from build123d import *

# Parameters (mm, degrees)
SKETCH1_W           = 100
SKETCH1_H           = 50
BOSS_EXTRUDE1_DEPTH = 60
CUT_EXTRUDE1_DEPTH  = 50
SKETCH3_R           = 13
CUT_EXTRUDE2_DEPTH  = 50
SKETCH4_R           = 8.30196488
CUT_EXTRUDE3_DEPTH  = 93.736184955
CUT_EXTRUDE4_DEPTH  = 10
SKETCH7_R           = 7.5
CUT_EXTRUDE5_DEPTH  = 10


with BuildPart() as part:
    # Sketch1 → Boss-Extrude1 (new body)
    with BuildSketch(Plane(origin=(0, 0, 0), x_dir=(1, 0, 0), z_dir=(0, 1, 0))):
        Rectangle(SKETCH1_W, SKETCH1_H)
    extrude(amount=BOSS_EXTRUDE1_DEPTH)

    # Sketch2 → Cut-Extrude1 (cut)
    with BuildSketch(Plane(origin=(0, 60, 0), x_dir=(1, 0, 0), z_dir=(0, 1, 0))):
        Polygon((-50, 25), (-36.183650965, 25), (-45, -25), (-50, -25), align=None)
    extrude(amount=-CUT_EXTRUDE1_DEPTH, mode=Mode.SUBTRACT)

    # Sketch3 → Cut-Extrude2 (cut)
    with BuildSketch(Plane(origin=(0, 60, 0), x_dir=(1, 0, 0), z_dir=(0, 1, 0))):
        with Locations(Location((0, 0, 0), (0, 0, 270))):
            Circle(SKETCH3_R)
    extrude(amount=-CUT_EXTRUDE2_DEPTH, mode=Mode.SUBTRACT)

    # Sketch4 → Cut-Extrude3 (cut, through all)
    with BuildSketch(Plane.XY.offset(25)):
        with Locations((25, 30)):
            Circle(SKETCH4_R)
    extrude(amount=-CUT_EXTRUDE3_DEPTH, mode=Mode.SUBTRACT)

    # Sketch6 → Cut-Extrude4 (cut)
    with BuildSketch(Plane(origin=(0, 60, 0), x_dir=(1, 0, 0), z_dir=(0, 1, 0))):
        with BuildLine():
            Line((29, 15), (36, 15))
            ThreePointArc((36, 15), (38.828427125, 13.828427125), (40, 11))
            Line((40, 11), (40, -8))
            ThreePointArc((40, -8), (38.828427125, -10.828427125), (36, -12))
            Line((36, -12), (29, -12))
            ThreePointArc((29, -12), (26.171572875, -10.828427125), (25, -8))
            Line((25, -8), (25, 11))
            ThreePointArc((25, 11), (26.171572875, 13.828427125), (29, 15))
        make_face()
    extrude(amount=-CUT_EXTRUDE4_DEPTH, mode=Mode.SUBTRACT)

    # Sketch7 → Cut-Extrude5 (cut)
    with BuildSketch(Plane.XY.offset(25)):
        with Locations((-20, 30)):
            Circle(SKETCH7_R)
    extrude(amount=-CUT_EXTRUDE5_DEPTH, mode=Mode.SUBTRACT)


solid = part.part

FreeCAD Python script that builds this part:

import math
import FreeCAD as App
import Part
import Sketcher
Q = App.Units.Quantity

doc = App.newDocument("Part")
body = doc.addObject("PartDesign::Body", "Body")

# Sketch on XZ plane
sketch1 = body.newObject("Sketcher::SketchObject", "Sketch")
sketch1.AttachmentSupport = (doc.getObject("XZ_Plane"), [""])
sketch1.MapMode = "FlatFace"
sketch1.addGeometry([
    Part.LineSegment(App.Vector(-50, -25, 0), App.Vector(-50, 25, 0)),
    Part.LineSegment(App.Vector(-50, 25, 0), App.Vector(50, 25, 0)),
    Part.LineSegment(App.Vector(50, 25, 0), App.Vector(50, -25, 0)),
    Part.LineSegment(App.Vector(50, -25, 0), App.Vector(-50, -25, 0)),
], False)
sketch1.addConstraint([
    Sketcher.Constraint("Coincident", 0, 2, 1, 1),
    Sketcher.Constraint("Coincident", 1, 2, 2, 1),
    Sketcher.Constraint("Coincident", 2, 2, 3, 1),
    Sketcher.Constraint("Coincident", 3, 2, 0, 1),
    Sketcher.Constraint("Vertical", 0),
    Sketcher.Constraint("Horizontal", 1),
    Sketcher.Constraint("Vertical", 2),
    Sketcher.Constraint("Horizontal", 3),
    Sketcher.Constraint("Symmetric", 0, 2, 2, 2, -1, 1),
    Sketcher.Constraint("DistanceX", 1, 1, 1, 2, 100.0),
    Sketcher.Constraint("DistanceY", 0, 1, 0, 2, 50.0),
])
pad1 = body.newObject("PartDesign::Pad", "Pad")
pad1.Profile = sketch1
pad1.Length = 60
pad1.Reversed = True

# Sketch on XZ plane
sketch2 = body.newObject("Sketcher::SketchObject", "Sketch001")
sketch2.AttachmentSupport = (doc.getObject("XZ_Plane"), [""])
sketch2.MapMode = "FlatFace"
sketch2.AttachmentOffset = App.Placement(App.Vector(0, 0, -60), App.Rotation())
sketch2.addGeometry([
    Part.LineSegment(App.Vector(-36, -25, 0), App.Vector(-50, -25, 0)),
    Part.LineSegment(App.Vector(-50, -25, 0), App.Vector(-50, 25, 0)),
    Part.LineSegment(App.Vector(-50, 25, 0), App.Vector(-45, 25, 0)),
    Part.LineSegment(App.Vector(-45, 25, 0), App.Vector(-36, -25, 0)),
], False)
sketch2.addConstraint([
    Sketcher.Constraint("Coincident", 0, 2, 1, 1),
    Sketcher.Constraint("Coincident", 1, 2, 2, 1),
    Sketcher.Constraint("Coincident", 2, 2, 3, 1),
    Sketcher.Constraint("Coincident", 3, 2, 0, 1),
    Sketcher.Constraint("Horizontal", 0),
    Sketcher.Constraint("Vertical", 1),
    Sketcher.Constraint("Horizontal", 2),
    Sketcher.Constraint("DistanceX", 2, 1, 2, 2, 5.0),
    Sketcher.Constraint("DistanceY", 1, 1, 1, 2, 50.0),
    Sketcher.Constraint("Angle", 3, Q("-80 deg")),
    Sketcher.Constraint("DistanceX", 0, 2, -1, 1, 50.0),
    Sketcher.Constraint("DistanceY", 0, 2, -1, 1, 25.0),
])
pocket1 = body.newObject("PartDesign::Pocket", "Pocket")
pocket1.Profile = sketch2
pocket1.Length = 50
pocket1.Reversed = True

# Sketch on XZ plane
sketch3 = body.newObject("Sketcher::SketchObject", "Sketch002")
sketch3.AttachmentSupport = (doc.getObject("XZ_Plane"), [""])
sketch3.MapMode = "FlatFace"
sketch3.AttachmentOffset = App.Placement(App.Vector(0, 0, -60), App.Rotation())
sketch3.addGeometry(Part.Circle(App.Vector(0, 0, 0), App.Vector(0, 0, 1), 13), False)
sketch3.addConstraint([
    Sketcher.Constraint("Coincident", 0, 3, -1, 1),
    Sketcher.Constraint("Diameter", 0, 26.0),
])
pocket2 = body.newObject("PartDesign::Pocket", "Pocket001")
pocket2.Profile = sketch3
pocket2.Length = 50
pocket2.Reversed = True

# Sketch on XY plane
sketch4 = body.newObject("Sketcher::SketchObject", "Sketch003")
sketch4.AttachmentSupport = (doc.getObject("XY_Plane"), [""])
sketch4.MapMode = "FlatFace"
sketch4.AttachmentOffset = App.Placement(App.Vector(0, 0, 25), App.Rotation())
sketch4.addGeometry(Part.Circle(App.Vector(25, 30, 0), App.Vector(0, 0, 1), 8), False)
sketch4.addConstraint([
    Sketcher.Constraint("DistanceX", -1, 1, 0, 3, 25.0),
    Sketcher.Constraint("DistanceY", -1, 1, 0, 3, 30.0),
    Sketcher.Constraint("Diameter", 0, 16.60393),
])
pocket3 = body.newObject("PartDesign::Pocket", "Pocket002")
pocket3.Profile = sketch4
pocket3.Type = "ThroughAll"

# Sketch on XZ plane
sketch5 = body.newObject("Sketcher::SketchObject", "Sketch004")
sketch5.AttachmentSupport = (doc.getObject("XZ_Plane"), [""])
sketch5.MapMode = "FlatFace"
sketch5.AttachmentOffset = App.Placement(App.Vector(0, 0, -60), App.Rotation())
sketch5.addGeometry([
    Part.LineSegment(App.Vector(36, -15, 0), App.Vector(29, -15, 0)),  # 0
    Part.ArcOfCircle(Part.Circle(App.Vector(29, -11, 0), App.Vector(0, 0, 1), 4), math.radians(180), math.radians(270)),  # 1
    Part.LineSegment(App.Vector(25, -11, 0), App.Vector(25, 8, 0)),  # 2
    Part.ArcOfCircle(Part.Circle(App.Vector(29, 8, 0), App.Vector(0, 0, 1), 4), math.radians(90), math.radians(180)),  # 3
    Part.LineSegment(App.Vector(29, 12, 0), App.Vector(36, 12, 0)),  # 4
    Part.ArcOfCircle(Part.Circle(App.Vector(36, 8, 0), App.Vector(0, 0, 1), 4), math.radians(0), math.radians(90)),  # 5
    Part.LineSegment(App.Vector(40, 8, 0), App.Vector(40, -11, 0)),  # 6
    Part.ArcOfCircle(Part.Circle(App.Vector(36, -11, 0), App.Vector(0, 0, 1), 4), math.radians(-90), math.radians(0)),  # 7
], False)
sketch5.addConstraint([
    Sketcher.Constraint("Tangent", 0, 2, 1, 2),
    Sketcher.Constraint("Tangent", 1, 1, 2, 1),
    Sketcher.Constraint("Tangent", 2, 2, 3, 2),
    Sketcher.Constraint("Tangent", 3, 1, 4, 1),
    Sketcher.Constraint("Tangent", 4, 2, 5, 2),
    Sketcher.Constraint("Tangent", 5, 1, 6, 1),
    Sketcher.Constraint("Tangent", 6, 2, 7, 2),
    Sketcher.Constraint("Tangent", 7, 1, 0, 1),
    Sketcher.Constraint("Horizontal", 0),
    Sketcher.Constraint("Vertical", 2),
    Sketcher.Constraint("Horizontal", 4),
    Sketcher.Constraint("Vertical", 6),
    Sketcher.Constraint("Equal", 1, 3),
    Sketcher.Constraint("Equal", 3, 5),
    Sketcher.Constraint("Equal", 5, 7),
    Sketcher.Constraint("Radius", 1, 4.0),
    Sketcher.Constraint("DistanceX", 0, 2, 0, 1, 7.0),
    Sketcher.Constraint("DistanceY", 2, 1, 2, 2, 19.0),
    Sketcher.Constraint("DistanceX", -1, 1, 1, 3, 29.0),
    Sketcher.Constraint("DistanceY", 1, 3, -1, 1, 11.0),
])
pocket4 = body.newObject("PartDesign::Pocket", "Pocket003")
pocket4.Profile = sketch5
pocket4.Length = 10
pocket4.Reversed = True

# Sketch on XY plane
sketch6 = body.newObject("Sketcher::SketchObject", "Sketch005")
sketch6.AttachmentSupport = (doc.getObject("XY_Plane"), [""])
sketch6.MapMode = "FlatFace"
sketch6.AttachmentOffset = App.Placement(App.Vector(0, 0, 25), App.Rotation())
sketch6.addGeometry(Part.Circle(App.Vector(-20, 30, 0), App.Vector(0, 0, 1), 8), False)
sketch6.addConstraint([
    Sketcher.Constraint("Diameter", 0, 15.0),
    Sketcher.Constraint("DistanceX", 0, 3, -1, 1, 20.0),
    Sketcher.Constraint("DistanceY", -1, 1, 0, 3, 30.0),
])
pocket5 = body.newObject("PartDesign::Pocket", "Pocket004")
pocket5.Profile = sketch6
pocket5.Length = 10

doc.recompute()
